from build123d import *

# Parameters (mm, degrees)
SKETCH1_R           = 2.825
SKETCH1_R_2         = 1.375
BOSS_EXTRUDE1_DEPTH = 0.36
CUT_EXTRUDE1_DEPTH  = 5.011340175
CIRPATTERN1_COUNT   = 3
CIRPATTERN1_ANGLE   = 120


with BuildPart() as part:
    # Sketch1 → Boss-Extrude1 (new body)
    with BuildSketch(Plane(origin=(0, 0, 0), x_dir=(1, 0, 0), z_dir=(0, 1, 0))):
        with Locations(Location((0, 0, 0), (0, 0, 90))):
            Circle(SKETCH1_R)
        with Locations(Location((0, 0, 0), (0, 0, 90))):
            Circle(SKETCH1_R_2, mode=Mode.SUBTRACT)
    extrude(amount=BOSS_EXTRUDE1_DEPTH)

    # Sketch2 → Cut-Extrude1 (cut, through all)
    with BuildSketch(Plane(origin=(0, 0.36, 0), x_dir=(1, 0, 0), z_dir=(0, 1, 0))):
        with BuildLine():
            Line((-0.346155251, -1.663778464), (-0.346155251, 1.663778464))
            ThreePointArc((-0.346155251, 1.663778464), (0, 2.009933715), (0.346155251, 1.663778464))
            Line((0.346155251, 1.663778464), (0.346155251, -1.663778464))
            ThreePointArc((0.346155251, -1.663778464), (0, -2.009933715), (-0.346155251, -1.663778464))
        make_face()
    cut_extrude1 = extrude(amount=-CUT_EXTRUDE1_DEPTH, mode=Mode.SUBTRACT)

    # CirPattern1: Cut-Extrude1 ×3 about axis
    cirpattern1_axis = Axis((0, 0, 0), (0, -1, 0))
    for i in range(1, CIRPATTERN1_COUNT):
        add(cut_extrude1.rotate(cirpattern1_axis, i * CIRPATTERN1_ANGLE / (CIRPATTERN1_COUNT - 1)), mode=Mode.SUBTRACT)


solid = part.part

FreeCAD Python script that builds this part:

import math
import FreeCAD as App
import Part
import Sketcher
from FreeCAD import Vector

doc = App.newDocument("Part")
body = doc.addObject("PartDesign::Body", "Body")

sketch1 = body.newObject("Sketcher::SketchObject", "Sketch")
sketch1.AttachmentSupport = (doc.getObject("XZ_Plane"), [""])
sketch1.MapMode = "FlatFace"
sketch1.addGeometry([
    Part.Circle(Vector(0, 0, 0), Vector(0, 0, 1), 2.825),
    Part.Circle(Vector(0, 0, 0), Vector(0, 0, 1), 1.375),
], False)
sketch1.addConstraint([
    Sketcher.Constraint("Coincident", 0, 3, -1, 1),
    Sketcher.Constraint("Coincident", 1, 3, -1, 1),
    Sketcher.Constraint("Diameter", 0, 5.65),
    Sketcher.Constraint("Diameter", 1, 2.75),
])
pad1 = body.newObject("PartDesign::Pad", "Pad")
pad1.Profile = sketch1
pad1.Length = 0.36
pad1.Reversed = True

sketch2 = body.newObject("Sketcher::SketchObject", "Sketch001")
sketch2.AttachmentSupport = (doc.getObject("XZ_Plane"), [""])
sketch2.MapMode = "FlatFace"
sketch2.AttachmentOffset = App.Placement(Vector(0, 0, -0.36), App.Rotation())
sketch2.addGeometry([
    Part.LineSegment(Vector(-0.346155, -1.663778, 0), Vector(-0.346155, 1.663778, 0)),
    Part.ArcOfCircle(Part.Circle(Vector(0, 1.663778, 0), Vector(0, 0, 1), 0.346155), math.radians(0), math.radians(180)),
    Part.LineSegment(Vector(0.346155, 1.663778, 0), Vector(0.346155, -1.663778, 0)),
    Part.ArcOfCircle(Part.Circle(Vector(0, -1.663778, 0), Vector(0, 0, 1), 0.346155), math.radians(180), math.radians(360)),
], False)
sketch2.addConstraint([
    Sketcher.Constraint("Tangent", 0, 2, 1, 2),
    Sketcher.Constraint("Tangent", 1, 1, 2, 1),
    Sketcher.Constraint("Tangent", 2, 2, 3, 2),
    Sketcher.Constraint("Tangent", 3, 1, 0, 1),
    Sketcher.Constraint("Vertical", 0),
    Sketcher.Constraint("Vertical", 2),
    Sketcher.Constraint("Symmetric", 1, 3, 3, 3, -1, 1),
    Sketcher.Constraint("Radius", 1, 0.346155),
    Sketcher.Constraint("DistanceY", 0, 1, 0, 2, 3.327557),
])
pocket1 = body.newObject("PartDesign::Pocket", "Pocket")
pocket1.Profile = sketch2
pocket1.Type = "ThroughAll"
pocket1.Reversed = True
doc.recompute()

polarpattern = body.newObject("PartDesign::PolarPattern", "PolarPattern")
polarpattern.Originals = [pocket1]
polarpattern.Axis = (doc.getObject("Y_Axis"), [""])
polarpattern.Angle = 120
polarpattern.Occurrences = 3
polarpattern.Reversed = True
body.Tip = polarpattern

doc.recompute()
